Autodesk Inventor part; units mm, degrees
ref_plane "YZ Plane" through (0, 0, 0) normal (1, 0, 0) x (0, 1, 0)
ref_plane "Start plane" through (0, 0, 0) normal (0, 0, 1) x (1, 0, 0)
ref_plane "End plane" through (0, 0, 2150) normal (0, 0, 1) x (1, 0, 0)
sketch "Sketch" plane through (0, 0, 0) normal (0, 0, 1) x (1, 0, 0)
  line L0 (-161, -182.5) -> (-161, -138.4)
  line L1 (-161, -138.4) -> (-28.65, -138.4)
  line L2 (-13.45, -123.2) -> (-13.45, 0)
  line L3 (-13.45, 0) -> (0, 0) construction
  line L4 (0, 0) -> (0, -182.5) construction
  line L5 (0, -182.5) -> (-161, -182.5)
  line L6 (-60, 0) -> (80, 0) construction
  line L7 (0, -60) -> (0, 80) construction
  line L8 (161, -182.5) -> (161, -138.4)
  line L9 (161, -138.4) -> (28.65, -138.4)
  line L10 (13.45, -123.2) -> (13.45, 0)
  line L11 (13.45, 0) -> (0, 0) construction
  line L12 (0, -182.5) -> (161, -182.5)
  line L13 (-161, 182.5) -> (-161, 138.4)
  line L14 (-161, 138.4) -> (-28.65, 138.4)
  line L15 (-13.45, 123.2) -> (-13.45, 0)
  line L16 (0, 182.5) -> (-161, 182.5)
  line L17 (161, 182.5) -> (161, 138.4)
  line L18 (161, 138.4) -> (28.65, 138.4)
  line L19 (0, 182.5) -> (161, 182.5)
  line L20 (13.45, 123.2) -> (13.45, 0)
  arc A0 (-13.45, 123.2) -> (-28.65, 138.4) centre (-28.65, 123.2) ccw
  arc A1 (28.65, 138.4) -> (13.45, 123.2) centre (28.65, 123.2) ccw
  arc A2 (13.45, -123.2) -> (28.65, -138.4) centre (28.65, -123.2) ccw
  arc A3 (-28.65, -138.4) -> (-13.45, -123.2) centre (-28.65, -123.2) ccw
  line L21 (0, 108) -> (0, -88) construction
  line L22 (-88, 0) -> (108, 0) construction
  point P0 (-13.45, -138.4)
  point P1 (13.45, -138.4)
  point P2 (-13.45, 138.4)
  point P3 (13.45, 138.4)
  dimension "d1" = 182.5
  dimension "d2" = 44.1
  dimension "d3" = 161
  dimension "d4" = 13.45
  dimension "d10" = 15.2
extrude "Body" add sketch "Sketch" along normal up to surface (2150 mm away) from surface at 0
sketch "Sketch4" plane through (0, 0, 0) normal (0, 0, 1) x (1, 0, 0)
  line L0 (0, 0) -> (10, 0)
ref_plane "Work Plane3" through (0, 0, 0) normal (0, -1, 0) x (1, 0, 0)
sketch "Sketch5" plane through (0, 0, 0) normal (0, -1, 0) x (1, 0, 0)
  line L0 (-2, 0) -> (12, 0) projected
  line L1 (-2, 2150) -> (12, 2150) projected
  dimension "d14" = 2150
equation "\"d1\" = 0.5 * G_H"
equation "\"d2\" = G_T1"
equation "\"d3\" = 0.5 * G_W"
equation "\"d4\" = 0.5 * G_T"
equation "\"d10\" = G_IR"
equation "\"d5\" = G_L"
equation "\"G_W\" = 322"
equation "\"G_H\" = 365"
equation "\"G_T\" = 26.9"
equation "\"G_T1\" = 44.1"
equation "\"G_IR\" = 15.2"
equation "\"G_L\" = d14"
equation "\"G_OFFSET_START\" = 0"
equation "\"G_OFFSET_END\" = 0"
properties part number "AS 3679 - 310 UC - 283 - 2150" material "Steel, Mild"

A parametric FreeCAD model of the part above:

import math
import FreeCAD as App
import Part
import Sketcher

doc = App.newDocument("Part")
params = doc.addObject("Spreadsheet::Sheet", "Params")
for row, (alias, value) in enumerate([
    ("sketch1_radius", "15.2 mm"),
    ("sketch1_height", "44.1 mm"),
    ("pad1_length", "2150 mm"),
], start=1):
    params.set(f"A{row}", alias)
    params.set(f"B{row}", "=" + value)
    params.setAlias(f"B{row}", alias)

body = doc.addObject("PartDesign::Body", "Body")

# Sketch on XY plane
sketch1 = body.newObject("Sketcher::SketchObject", "Sketch")
sketch1.AttachmentSupport = (doc.getObject("XY_Plane"), [""])
sketch1.MapMode = "FlatFace"
sketch1.addGeometry([
    Part.LineSegment(App.Vector(-161, -138.4, 0), App.Vector(-161, -182.5, 0)),  # 0
    Part.LineSegment(App.Vector(-161, -182.5, 0), App.Vector(161, -182.5, 0)),  # 1
    Part.LineSegment(App.Vector(161, -182.5, 0), App.Vector(161, -138.4, 0)),  # 2
    Part.LineSegment(App.Vector(161, -138.4, 0), App.Vector(28.65, -138.4, 0)),  # 3
    Part.ArcOfCircle(Part.Circle(App.Vector(28.65, -123.2, 0), App.Vector(0, 0, 1), 15.2), math.radians(180), math.radians(270)),  # 4
    Part.LineSegment(App.Vector(13.45, -123.2, 0), App.Vector(13.45, 123.2, 0)),  # 5
    Part.ArcOfCircle(Part.Circle(App.Vector(28.65, 123.2, 0), App.Vector(0, 0, 1), 15.2), math.radians(90), math.radians(180)),  # 6
    Part.LineSegment(App.Vector(28.65, 138.4, 0), App.Vector(161, 138.4, 0)),  # 7
    Part.LineSegment(App.Vector(161, 138.4, 0), App.Vector(161, 182.5, 0)),  # 8
    Part.LineSegment(App.Vector(161, 182.5, 0), App.Vector(-161, 182.5, 0)),  # 9
    Part.LineSegment(App.Vector(-161, 182.5, 0), App.Vector(-161, 138.4, 0)),  # 10
    Part.LineSegment(App.Vector(-161, 138.4, 0), App.Vector(-28.65, 138.4, 0)),  # 11
    Part.ArcOfCircle(Part.Circle(App.Vector(-28.65, 123.2, 0), App.Vector(0, 0, 1), 15.2), math.radians(0), math.radians(90)),  # 12
    Part.LineSegment(App.Vector(-13.45, 123.2, 0), App.Vector(-13.45, -123.2, 0)),  # 13
    Part.ArcOfCircle(Part.Circle(App.Vector(-28.65, -123.2, 0), App.Vector(0, 0, 1), 15.2), math.radians(-90), math.radians(0)),  # 14
    Part.LineSegment(App.Vector(-28.65, -138.4, 0), App.Vector(-161, -138.4, 0)),  # 15
], False)
sketch1.addConstraint([
    Sketcher.Constraint("Coincident", 0, 2, 1, 1),
    Sketcher.Constraint("Coincident", 1, 2, 2, 1),
    Sketcher.Constraint("Coincident", 2, 2, 3, 1),
    Sketcher.Constraint("Tangent", 3, 2, 4, 2),
    Sketcher.Constraint("Tangent", 4, 1, 5, 1),
    Sketcher.Constraint("Tangent", 5, 2, 6, 2),
    Sketcher.Constraint("Tangent", 6, 1, 7, 1),
    Sketcher.Constraint("Coincident", 7, 2, 8, 1),
    Sketcher.Constraint("Coincident", 8, 2, 9, 1),
    Sketcher.Constraint("Coincident", 9, 2, 10, 1),
    Sketcher.Constraint("Coincident", 10, 2, 11, 1),
    Sketcher.Constraint("Tangent", 11, 2, 12, 2),
    Sketcher.Constraint("Tangent", 12, 1, 13, 1),
    Sketcher.Constraint("Tangent", 13, 2, 14, 2),
    Sketcher.Constraint("Tangent", 14, 1, 15, 1),
    Sketcher.Constraint("Coincident", 15, 2, 0, 1),
    Sketcher.Constraint("Vertical", 0),
    Sketcher.Constraint("Horizontal", 1),
    Sketcher.Constraint("Vertical", 2),
    Sketcher.Constraint("Horizontal", 3),
    Sketcher.Constraint("Vertical", 5),
    Sketcher.Constraint("Horizontal", 7),
    Sketcher.Constraint("Vertical", 8),
    Sketcher.Constraint("Horizontal", 9),
    Sketcher.Constraint("Vertical", 10),
    Sketcher.Constraint("Horizontal", 11),
    Sketcher.Constraint("Vertical", 13),
    Sketcher.Constraint("Horizontal", 15),
    Sketcher.Constraint("Equal", 4, 6),
    Sketcher.Constraint("Equal", 6, 12),
    Sketcher.Constraint("Equal", 12, 14),
    Sketcher.Constraint("Symmetric", 4, 3, 12, 3, -1, 1),
    Sketcher.Constraint("Symmetric", 0, 2, 8, 2, -1, 1),
    Sketcher.Constraint("Symmetric", 7, 2, 10, 2, -2),
    Sketcher.Constraint("Symmetric", 2, 2, 15, 2, -2),
    Sketcher.Constraint("Radius", 4, 15.2),
    Sketcher.Constraint("DistanceY", 0, 2, 0, 1, 44.1),
    Sketcher.Constraint("DistanceX", 0, 2, -1, 1, 161.0),
    Sketcher.Constraint("DistanceY", 0, 2, -1, 1, 182.5),
    Sketcher.Constraint("DistanceX", -1, 1, 4, 1, 13.45),
])
sketch1.setExpression("Constraints[35]", "Params.sketch1_radius")
sketch1.setExpression("Constraints[36]", "Params.sketch1_height")
pad1 = body.newObject("PartDesign::Pad", "Pad")
pad1.Profile = sketch1
pad1.setExpression("Length", "Params.pad1_length")

doc.recompute()
